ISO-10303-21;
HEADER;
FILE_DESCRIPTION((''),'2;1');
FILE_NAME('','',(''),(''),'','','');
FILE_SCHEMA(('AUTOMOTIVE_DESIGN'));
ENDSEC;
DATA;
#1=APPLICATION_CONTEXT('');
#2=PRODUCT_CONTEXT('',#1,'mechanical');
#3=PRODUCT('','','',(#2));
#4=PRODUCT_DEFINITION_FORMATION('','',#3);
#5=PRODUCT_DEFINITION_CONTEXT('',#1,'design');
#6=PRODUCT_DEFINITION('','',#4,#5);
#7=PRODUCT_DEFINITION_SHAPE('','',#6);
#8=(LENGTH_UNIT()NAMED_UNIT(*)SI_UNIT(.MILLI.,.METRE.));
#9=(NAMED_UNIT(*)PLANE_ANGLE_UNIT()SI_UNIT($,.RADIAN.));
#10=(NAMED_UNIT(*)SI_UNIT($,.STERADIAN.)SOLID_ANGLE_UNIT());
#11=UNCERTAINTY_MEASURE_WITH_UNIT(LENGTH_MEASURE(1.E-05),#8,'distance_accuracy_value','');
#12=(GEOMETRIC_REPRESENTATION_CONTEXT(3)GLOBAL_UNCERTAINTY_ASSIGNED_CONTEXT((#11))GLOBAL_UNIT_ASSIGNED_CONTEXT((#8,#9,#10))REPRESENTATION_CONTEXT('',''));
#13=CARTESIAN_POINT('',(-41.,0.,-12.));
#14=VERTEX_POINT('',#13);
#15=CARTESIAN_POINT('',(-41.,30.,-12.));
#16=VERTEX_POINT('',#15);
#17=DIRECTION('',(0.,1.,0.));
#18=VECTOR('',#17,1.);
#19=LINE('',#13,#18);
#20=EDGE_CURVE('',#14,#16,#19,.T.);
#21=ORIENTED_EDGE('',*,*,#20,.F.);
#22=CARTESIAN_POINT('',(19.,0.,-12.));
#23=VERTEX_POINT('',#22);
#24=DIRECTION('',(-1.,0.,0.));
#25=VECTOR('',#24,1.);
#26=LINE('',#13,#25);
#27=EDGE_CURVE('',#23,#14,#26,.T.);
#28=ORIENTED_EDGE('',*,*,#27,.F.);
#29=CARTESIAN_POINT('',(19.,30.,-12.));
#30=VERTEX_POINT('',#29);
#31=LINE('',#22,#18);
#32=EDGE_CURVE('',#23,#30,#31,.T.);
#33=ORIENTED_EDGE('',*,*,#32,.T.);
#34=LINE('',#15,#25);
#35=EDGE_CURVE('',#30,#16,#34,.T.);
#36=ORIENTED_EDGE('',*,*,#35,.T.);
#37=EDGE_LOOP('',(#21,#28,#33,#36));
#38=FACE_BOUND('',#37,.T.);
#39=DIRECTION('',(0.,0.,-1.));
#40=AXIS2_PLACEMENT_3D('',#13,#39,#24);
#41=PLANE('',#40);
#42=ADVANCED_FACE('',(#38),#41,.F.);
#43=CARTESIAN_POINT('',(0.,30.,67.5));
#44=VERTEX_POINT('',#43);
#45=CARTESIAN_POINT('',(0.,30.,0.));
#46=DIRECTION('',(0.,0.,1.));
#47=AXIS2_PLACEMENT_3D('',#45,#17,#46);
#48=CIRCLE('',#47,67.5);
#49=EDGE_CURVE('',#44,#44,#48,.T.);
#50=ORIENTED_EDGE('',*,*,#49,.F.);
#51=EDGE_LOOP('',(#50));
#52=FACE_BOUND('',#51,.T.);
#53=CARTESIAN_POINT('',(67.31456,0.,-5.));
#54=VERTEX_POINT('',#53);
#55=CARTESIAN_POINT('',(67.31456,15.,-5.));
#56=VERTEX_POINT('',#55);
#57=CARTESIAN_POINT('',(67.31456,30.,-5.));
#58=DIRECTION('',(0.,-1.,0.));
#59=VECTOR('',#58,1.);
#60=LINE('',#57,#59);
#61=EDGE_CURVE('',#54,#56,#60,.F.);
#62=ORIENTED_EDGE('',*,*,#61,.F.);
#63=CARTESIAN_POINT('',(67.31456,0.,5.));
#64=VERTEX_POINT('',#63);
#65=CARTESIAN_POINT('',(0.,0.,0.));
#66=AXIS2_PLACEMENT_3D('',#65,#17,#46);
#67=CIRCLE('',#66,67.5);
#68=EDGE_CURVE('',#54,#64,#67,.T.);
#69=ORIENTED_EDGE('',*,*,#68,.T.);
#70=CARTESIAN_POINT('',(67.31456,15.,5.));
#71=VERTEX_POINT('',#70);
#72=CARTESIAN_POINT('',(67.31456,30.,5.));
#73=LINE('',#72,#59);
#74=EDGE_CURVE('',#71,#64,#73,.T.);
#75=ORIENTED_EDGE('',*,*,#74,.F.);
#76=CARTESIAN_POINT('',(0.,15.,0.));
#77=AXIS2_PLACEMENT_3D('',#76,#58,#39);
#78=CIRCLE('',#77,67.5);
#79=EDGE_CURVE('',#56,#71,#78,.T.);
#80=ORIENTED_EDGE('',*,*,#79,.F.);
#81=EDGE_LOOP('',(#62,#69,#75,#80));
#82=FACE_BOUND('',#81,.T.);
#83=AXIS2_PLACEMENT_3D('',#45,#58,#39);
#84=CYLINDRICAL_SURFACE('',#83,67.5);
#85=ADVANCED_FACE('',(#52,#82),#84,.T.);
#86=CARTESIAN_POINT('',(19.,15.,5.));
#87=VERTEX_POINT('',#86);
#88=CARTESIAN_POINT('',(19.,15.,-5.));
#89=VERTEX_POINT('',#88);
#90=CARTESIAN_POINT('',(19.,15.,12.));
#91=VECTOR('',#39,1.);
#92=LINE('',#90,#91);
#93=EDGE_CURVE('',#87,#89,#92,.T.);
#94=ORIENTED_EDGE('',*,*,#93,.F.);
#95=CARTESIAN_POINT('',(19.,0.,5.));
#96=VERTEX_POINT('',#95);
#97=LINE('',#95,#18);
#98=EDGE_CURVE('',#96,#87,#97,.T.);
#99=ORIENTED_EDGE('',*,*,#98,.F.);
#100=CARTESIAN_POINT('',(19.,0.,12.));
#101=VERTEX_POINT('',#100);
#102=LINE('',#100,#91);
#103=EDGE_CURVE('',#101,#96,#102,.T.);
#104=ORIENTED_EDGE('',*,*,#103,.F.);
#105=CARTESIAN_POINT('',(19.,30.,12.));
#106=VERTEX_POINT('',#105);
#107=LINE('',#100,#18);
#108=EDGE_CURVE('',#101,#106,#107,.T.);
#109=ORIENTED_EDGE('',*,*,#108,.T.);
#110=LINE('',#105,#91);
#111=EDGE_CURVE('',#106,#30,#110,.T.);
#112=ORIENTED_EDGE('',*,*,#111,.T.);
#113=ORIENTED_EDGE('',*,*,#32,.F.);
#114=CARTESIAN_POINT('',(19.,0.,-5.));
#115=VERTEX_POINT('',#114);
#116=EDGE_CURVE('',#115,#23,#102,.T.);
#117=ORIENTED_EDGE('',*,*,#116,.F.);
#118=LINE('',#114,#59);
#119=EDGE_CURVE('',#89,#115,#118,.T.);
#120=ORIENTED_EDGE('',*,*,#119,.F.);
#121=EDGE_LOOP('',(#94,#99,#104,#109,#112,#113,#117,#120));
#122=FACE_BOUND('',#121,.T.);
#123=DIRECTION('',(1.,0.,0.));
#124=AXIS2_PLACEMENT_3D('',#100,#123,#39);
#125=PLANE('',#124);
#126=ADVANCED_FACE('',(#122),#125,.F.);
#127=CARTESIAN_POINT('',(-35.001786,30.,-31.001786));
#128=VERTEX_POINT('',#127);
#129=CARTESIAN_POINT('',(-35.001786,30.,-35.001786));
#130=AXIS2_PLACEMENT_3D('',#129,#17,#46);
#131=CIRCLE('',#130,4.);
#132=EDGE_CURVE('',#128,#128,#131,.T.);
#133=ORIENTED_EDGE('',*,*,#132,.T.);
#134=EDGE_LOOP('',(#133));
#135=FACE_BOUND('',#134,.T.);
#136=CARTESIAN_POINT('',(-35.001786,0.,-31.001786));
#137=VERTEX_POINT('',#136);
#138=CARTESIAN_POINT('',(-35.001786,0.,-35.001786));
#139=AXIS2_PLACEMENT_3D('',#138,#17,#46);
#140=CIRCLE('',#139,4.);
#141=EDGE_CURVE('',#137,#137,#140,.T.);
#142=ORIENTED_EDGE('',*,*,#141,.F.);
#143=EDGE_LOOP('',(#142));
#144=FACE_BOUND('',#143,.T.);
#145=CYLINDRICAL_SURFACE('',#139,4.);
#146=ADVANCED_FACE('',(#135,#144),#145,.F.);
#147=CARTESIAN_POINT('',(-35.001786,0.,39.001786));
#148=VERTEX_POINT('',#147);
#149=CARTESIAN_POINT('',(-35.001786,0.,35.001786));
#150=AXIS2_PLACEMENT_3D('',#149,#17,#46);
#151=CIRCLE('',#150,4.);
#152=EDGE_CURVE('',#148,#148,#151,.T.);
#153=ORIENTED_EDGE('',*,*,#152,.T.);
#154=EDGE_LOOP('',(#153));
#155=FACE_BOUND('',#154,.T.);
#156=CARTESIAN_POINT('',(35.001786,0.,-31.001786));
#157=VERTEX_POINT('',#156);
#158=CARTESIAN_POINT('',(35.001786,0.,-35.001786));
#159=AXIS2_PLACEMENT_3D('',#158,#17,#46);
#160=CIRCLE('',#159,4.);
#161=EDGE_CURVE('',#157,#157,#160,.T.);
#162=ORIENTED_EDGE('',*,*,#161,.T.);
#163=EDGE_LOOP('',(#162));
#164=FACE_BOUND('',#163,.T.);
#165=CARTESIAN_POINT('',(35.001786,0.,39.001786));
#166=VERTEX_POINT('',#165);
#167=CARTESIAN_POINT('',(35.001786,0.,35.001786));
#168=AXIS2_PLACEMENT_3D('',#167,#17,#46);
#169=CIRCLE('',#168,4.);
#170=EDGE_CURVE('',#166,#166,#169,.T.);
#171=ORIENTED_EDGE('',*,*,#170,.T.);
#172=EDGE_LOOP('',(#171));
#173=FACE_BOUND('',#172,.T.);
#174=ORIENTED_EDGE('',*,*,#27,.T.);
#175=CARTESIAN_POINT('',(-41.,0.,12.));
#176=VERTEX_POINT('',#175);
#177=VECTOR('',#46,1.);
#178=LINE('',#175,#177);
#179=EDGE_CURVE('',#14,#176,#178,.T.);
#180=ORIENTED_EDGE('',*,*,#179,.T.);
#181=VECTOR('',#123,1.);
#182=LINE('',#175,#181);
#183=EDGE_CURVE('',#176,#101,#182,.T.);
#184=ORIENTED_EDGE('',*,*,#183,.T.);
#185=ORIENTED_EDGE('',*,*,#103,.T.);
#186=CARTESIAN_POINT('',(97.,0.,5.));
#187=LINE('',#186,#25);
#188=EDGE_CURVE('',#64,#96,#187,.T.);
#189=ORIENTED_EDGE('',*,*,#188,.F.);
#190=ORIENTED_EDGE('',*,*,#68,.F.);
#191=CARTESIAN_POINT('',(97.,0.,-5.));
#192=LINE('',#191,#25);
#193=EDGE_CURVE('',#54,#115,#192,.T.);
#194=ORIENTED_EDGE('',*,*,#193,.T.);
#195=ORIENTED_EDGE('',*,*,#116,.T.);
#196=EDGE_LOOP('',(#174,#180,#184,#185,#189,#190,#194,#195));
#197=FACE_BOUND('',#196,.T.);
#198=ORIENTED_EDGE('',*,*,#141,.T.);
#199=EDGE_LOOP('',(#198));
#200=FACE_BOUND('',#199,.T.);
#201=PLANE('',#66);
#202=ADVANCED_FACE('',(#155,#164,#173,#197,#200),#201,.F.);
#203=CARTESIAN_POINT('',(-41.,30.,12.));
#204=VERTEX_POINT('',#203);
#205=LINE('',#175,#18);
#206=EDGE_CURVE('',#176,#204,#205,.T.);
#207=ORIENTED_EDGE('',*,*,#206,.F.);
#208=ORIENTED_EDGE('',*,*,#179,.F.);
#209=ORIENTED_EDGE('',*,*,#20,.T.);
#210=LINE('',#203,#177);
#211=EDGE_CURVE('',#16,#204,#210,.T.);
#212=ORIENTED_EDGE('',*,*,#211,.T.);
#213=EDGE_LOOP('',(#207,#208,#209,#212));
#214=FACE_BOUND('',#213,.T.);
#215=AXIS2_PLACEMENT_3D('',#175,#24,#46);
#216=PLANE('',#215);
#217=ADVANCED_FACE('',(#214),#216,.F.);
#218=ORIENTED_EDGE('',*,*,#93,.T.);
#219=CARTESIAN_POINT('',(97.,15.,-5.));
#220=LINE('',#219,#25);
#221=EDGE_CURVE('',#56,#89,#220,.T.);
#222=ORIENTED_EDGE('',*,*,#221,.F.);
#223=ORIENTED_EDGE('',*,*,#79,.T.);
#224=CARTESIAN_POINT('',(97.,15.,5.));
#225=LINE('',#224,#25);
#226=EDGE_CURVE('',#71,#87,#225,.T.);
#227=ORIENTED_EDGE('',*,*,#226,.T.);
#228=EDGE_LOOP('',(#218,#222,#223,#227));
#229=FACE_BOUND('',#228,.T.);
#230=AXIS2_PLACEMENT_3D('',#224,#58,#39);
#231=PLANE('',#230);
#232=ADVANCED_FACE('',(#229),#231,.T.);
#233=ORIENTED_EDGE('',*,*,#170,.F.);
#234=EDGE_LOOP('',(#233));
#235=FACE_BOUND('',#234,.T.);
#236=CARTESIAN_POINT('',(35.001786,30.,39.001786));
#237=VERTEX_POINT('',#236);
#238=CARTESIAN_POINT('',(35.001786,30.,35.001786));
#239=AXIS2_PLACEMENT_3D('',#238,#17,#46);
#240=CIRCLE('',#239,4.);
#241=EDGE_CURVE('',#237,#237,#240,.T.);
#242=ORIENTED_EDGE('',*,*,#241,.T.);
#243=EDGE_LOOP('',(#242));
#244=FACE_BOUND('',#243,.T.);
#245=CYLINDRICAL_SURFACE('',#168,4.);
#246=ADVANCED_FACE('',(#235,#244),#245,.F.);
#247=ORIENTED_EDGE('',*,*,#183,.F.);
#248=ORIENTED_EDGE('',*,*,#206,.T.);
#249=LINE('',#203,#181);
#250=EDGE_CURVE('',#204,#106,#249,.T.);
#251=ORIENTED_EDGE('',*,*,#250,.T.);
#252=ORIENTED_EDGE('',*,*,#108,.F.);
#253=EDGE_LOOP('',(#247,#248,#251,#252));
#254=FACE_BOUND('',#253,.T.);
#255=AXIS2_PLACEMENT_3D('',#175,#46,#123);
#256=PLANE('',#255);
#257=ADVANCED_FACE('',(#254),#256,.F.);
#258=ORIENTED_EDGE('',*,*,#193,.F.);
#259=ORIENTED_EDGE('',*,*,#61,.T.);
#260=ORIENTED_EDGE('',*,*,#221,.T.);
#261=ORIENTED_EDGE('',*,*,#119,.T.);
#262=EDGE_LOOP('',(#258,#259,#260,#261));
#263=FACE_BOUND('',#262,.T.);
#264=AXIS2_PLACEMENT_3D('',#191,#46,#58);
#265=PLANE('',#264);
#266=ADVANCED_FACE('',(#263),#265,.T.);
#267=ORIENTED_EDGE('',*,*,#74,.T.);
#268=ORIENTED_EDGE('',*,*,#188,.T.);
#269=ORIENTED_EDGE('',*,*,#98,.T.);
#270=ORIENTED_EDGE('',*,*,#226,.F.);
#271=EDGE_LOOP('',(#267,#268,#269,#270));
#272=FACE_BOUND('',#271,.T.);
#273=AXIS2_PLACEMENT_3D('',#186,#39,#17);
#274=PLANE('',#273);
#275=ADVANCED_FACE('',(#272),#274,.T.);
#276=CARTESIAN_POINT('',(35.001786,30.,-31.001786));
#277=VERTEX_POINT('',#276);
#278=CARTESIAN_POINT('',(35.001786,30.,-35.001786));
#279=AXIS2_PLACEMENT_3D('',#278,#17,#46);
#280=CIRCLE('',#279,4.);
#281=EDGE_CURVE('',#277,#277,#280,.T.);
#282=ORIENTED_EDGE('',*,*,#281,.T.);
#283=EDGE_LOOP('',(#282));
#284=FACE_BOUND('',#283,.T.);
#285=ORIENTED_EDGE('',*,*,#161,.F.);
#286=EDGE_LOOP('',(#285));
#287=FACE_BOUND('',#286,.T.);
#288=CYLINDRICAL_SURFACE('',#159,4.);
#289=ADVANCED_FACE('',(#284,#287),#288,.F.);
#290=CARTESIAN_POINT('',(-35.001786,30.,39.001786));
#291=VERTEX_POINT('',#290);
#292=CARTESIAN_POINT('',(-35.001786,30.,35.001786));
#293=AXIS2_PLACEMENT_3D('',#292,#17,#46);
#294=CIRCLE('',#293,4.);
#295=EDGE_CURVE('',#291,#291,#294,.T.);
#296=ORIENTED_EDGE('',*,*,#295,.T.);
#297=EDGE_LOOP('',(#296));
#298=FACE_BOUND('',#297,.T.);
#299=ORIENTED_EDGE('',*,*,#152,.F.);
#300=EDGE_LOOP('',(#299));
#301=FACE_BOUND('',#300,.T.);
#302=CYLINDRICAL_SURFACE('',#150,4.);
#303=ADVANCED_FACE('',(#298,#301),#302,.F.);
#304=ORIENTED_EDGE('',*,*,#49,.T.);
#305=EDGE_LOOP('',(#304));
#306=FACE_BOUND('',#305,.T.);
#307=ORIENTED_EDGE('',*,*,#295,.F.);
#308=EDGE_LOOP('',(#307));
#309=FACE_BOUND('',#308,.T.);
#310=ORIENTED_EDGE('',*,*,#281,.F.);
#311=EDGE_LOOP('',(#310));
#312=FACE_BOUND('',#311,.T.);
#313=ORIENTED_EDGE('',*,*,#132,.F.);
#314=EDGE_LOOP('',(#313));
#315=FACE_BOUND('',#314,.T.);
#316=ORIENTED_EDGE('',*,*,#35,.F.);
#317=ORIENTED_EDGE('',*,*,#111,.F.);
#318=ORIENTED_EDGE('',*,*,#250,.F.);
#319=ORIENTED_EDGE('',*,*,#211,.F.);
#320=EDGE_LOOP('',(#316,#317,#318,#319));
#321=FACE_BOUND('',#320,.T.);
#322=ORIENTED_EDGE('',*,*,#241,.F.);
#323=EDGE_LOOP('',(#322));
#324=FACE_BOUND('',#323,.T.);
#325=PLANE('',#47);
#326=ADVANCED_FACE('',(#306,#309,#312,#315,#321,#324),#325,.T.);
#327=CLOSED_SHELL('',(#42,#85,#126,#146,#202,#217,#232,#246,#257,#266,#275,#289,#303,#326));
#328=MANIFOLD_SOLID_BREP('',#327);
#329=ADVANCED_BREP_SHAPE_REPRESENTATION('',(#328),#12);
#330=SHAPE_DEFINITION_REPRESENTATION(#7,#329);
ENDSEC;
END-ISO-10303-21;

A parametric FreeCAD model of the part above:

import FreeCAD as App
import Part
import Sketcher
from FreeCAD import Vector


def add_polygon(sketch, points):
    """Adds a closed chain of lines whose ends are joined by coincident constraints."""
    first, n = sketch.GeometryCount, len(points)
    for a, b in zip(points, points[1:] + points[:1]):
        sketch.addGeometry(Part.LineSegment(App.Vector(*a, 0), App.Vector(*b, 0)), False)
    for i in range(n):
        sketch.addConstraint(Sketcher.Constraint("Coincident", first + i, 2, first + (i + 1) % n, 1))

doc = App.newDocument("Part")
params = doc.addObject("Spreadsheet::Sheet", "Params")
for row, (alias, value) in enumerate([
    ("sketch1_diameter", "135 mm"),
    ("pad1_length", "30 mm"),
    ("sketch2_width", "60 mm"),
    ("sketch2_height", "24 mm"),
    ("sketch3_width", "15 mm"),
    ("sketch3_height", "10 mm"),
    ("pocket2_length", "97 mm"),
    ("sketch4_diameter", "8 mm"),
], start=1):
    params.set(f"A{row}", alias)
    params.set(f"B{row}", "=" + value)
    params.setAlias(f"B{row}", alias)

body = doc.addObject("PartDesign::Body", "Body")

# Sketch on XZ plane
sketch1 = body.newObject("Sketcher::SketchObject", "Sketch")
sketch1.AttachmentSupport = (doc.getObject("XZ_Plane"), [""])
sketch1.MapMode = "FlatFace"
sketch1.addGeometry(Part.Circle(Vector(0, 0, 0), Vector(0, 0, 1), 68), False)
sketch1.addConstraint(Sketcher.Constraint("Coincident", 0, 3, -1, 1))
sketch1.addConstraint(Sketcher.Constraint("Diameter", 0, 135.0))
sketch1.setExpression("Constraints[1]", "Params.sketch1_diameter")
pad1 = body.newObject("PartDesign::Pad", "Pad")
pad1.Profile = sketch1
pad1.setExpression("Length", "Params.pad1_length")
pad1.Reversed = True

# Sketch on XZ plane
sketch2 = body.newObject("Sketcher::SketchObject", "Sketch001")
sketch2.AttachmentSupport = (doc.getObject("XZ_Plane"), [""])
sketch2.MapMode = "FlatFace"
sketch2.AttachmentOffset = App.Placement(Vector(0, 0, -30), App.Rotation())
add_polygon(sketch2, [(-41, -12), (-41, 12), (19, 12), (19, -12)])  # lines 0-3
sketch2.addConstraint(Sketcher.Constraint("Vertical", 0))
sketch2.addConstraint(Sketcher.Constraint("Horizontal", 1))
sketch2.addConstraint(Sketcher.Constraint("Vertical", 2))
sketch2.addConstraint(Sketcher.Constraint("Horizontal", 3))
sketch2.addConstraint(Sketcher.Constraint("DistanceX", 1, 1, 1, 2, 60.0))
sketch2.addConstraint(Sketcher.Constraint("DistanceY", 0, 1, 0, 2, 24.0))
sketch2.addConstraint(Sketcher.Constraint("DistanceX", 0, 2, -1, 1, 41.0))
sketch2.addConstraint(Sketcher.Constraint("DistanceY", -1, 1, 0, 2, 12.0))
sketch2.setExpression("Constraints[8]", "Params.sketch2_width")
sketch2.setExpression("Constraints[9]", "Params.sketch2_height")
pocket1 = body.newObject("PartDesign::Pocket", "Pocket")
pocket1.Profile = sketch2
pocket1.Type = "ThroughAll"
pocket1.Reversed = True

# Sketch on YZ plane
sketch3 = body.newObject("Sketcher::SketchObject", "Sketch002")
sketch3.AttachmentSupport = (doc.getObject("YZ_Plane"), [""])
sketch3.MapMode = "FlatFace"
add_polygon(sketch3, [(15, 5), (0, 5), (0, -5), (15, -5)])  # lines 0-3
sketch3.addConstraint(Sketcher.Constraint("Horizontal", 0))
sketch3.addConstraint(Sketcher.Constraint("Vertical", 1))
sketch3.addConstraint(Sketcher.Constraint("Horizontal", 2))
sketch3.addConstraint(Sketcher.Constraint("Vertical", 3))
sketch3.addConstraint(Sketcher.Constraint("Symmetric", 0, 2, 1, 2, -1, 1))
sketch3.addConstraint(Sketcher.Constraint("DistanceX", 0, 2, 0, 1, 15.0))
sketch3.addConstraint(Sketcher.Constraint("DistanceY", 1, 2, 1, 1, 10.0))
sketch3.setExpression("Constraints[9]", "Params.sketch3_width")
sketch3.setExpression("Constraints[10]", "Params.sketch3_height")
pocket2 = body.newObject("PartDesign::Pocket", "Pocket001")
pocket2.Profile = sketch3
pocket2.setExpression("Length", "Params.pocket2_length")
pocket2.Reversed = True

# Sketch on XZ plane
sketch4 = body.newObject("Sketcher::SketchObject", "Sketch003")
sketch4.AttachmentSupport = (doc.getObject("XZ_Plane"), [""])
sketch4.MapMode = "FlatFace"
sketch4.AttachmentOffset = App.Placement(Vector(0, 0, -30), App.Rotation())
sketch4.addGeometry(Part.Circle(Vector(35, -35, 0), Vector(0, 0, 1), 4), False)
sketch4.addGeometry(Part.Circle(Vector(35, 35, 0), Vector(0, 0, 1), 4), False)
sketch4.addGeometry(Part.Circle(Vector(-35, 35, 0), Vector(0, 0, 1), 4), False)
sketch4.addGeometry(Part.Circle(Vector(-35, -35, 0), Vector(0, 0, 1), 4), False)
sketch4.addConstraint(Sketcher.Constraint("Equal", 0, 1))
sketch4.addConstraint(Sketcher.Constraint("Equal", 1, 2))
sketch4.addConstraint(Sketcher.Constraint("Equal", 2, 3))
sketch4.addConstraint(Sketcher.Constraint("Symmetric", 0, 3, 2, 3, -1, 1))
sketch4.addConstraint(Sketcher.Constraint("Symmetric", 1, 3, 3, 3, -1, 1))
sketch4.addConstraint(Sketcher.Constraint("Symmetric", 1, 3, 2, 3, -2))
sketch4.addConstraint(Sketcher.Constraint("Diameter", 0, 8.0))
sketch4.addConstraint(Sketcher.Constraint("DistanceY", 0, 3, 1, 3, 70.003571))
sketch4.addConstraint(Sketcher.Constraint("DistanceX", 2, 3, 1, 3, 70.003571))
sketch4.setExpression("Constraints[6]", "Params.sketch4_diameter")
pocket3 = body.newObject("PartDesign::Pocket", "Pocket002")
pocket3.Profile = sketch4
pocket3.Type = "ThroughAll"
pocket3.Reversed = True

doc.recompute()
